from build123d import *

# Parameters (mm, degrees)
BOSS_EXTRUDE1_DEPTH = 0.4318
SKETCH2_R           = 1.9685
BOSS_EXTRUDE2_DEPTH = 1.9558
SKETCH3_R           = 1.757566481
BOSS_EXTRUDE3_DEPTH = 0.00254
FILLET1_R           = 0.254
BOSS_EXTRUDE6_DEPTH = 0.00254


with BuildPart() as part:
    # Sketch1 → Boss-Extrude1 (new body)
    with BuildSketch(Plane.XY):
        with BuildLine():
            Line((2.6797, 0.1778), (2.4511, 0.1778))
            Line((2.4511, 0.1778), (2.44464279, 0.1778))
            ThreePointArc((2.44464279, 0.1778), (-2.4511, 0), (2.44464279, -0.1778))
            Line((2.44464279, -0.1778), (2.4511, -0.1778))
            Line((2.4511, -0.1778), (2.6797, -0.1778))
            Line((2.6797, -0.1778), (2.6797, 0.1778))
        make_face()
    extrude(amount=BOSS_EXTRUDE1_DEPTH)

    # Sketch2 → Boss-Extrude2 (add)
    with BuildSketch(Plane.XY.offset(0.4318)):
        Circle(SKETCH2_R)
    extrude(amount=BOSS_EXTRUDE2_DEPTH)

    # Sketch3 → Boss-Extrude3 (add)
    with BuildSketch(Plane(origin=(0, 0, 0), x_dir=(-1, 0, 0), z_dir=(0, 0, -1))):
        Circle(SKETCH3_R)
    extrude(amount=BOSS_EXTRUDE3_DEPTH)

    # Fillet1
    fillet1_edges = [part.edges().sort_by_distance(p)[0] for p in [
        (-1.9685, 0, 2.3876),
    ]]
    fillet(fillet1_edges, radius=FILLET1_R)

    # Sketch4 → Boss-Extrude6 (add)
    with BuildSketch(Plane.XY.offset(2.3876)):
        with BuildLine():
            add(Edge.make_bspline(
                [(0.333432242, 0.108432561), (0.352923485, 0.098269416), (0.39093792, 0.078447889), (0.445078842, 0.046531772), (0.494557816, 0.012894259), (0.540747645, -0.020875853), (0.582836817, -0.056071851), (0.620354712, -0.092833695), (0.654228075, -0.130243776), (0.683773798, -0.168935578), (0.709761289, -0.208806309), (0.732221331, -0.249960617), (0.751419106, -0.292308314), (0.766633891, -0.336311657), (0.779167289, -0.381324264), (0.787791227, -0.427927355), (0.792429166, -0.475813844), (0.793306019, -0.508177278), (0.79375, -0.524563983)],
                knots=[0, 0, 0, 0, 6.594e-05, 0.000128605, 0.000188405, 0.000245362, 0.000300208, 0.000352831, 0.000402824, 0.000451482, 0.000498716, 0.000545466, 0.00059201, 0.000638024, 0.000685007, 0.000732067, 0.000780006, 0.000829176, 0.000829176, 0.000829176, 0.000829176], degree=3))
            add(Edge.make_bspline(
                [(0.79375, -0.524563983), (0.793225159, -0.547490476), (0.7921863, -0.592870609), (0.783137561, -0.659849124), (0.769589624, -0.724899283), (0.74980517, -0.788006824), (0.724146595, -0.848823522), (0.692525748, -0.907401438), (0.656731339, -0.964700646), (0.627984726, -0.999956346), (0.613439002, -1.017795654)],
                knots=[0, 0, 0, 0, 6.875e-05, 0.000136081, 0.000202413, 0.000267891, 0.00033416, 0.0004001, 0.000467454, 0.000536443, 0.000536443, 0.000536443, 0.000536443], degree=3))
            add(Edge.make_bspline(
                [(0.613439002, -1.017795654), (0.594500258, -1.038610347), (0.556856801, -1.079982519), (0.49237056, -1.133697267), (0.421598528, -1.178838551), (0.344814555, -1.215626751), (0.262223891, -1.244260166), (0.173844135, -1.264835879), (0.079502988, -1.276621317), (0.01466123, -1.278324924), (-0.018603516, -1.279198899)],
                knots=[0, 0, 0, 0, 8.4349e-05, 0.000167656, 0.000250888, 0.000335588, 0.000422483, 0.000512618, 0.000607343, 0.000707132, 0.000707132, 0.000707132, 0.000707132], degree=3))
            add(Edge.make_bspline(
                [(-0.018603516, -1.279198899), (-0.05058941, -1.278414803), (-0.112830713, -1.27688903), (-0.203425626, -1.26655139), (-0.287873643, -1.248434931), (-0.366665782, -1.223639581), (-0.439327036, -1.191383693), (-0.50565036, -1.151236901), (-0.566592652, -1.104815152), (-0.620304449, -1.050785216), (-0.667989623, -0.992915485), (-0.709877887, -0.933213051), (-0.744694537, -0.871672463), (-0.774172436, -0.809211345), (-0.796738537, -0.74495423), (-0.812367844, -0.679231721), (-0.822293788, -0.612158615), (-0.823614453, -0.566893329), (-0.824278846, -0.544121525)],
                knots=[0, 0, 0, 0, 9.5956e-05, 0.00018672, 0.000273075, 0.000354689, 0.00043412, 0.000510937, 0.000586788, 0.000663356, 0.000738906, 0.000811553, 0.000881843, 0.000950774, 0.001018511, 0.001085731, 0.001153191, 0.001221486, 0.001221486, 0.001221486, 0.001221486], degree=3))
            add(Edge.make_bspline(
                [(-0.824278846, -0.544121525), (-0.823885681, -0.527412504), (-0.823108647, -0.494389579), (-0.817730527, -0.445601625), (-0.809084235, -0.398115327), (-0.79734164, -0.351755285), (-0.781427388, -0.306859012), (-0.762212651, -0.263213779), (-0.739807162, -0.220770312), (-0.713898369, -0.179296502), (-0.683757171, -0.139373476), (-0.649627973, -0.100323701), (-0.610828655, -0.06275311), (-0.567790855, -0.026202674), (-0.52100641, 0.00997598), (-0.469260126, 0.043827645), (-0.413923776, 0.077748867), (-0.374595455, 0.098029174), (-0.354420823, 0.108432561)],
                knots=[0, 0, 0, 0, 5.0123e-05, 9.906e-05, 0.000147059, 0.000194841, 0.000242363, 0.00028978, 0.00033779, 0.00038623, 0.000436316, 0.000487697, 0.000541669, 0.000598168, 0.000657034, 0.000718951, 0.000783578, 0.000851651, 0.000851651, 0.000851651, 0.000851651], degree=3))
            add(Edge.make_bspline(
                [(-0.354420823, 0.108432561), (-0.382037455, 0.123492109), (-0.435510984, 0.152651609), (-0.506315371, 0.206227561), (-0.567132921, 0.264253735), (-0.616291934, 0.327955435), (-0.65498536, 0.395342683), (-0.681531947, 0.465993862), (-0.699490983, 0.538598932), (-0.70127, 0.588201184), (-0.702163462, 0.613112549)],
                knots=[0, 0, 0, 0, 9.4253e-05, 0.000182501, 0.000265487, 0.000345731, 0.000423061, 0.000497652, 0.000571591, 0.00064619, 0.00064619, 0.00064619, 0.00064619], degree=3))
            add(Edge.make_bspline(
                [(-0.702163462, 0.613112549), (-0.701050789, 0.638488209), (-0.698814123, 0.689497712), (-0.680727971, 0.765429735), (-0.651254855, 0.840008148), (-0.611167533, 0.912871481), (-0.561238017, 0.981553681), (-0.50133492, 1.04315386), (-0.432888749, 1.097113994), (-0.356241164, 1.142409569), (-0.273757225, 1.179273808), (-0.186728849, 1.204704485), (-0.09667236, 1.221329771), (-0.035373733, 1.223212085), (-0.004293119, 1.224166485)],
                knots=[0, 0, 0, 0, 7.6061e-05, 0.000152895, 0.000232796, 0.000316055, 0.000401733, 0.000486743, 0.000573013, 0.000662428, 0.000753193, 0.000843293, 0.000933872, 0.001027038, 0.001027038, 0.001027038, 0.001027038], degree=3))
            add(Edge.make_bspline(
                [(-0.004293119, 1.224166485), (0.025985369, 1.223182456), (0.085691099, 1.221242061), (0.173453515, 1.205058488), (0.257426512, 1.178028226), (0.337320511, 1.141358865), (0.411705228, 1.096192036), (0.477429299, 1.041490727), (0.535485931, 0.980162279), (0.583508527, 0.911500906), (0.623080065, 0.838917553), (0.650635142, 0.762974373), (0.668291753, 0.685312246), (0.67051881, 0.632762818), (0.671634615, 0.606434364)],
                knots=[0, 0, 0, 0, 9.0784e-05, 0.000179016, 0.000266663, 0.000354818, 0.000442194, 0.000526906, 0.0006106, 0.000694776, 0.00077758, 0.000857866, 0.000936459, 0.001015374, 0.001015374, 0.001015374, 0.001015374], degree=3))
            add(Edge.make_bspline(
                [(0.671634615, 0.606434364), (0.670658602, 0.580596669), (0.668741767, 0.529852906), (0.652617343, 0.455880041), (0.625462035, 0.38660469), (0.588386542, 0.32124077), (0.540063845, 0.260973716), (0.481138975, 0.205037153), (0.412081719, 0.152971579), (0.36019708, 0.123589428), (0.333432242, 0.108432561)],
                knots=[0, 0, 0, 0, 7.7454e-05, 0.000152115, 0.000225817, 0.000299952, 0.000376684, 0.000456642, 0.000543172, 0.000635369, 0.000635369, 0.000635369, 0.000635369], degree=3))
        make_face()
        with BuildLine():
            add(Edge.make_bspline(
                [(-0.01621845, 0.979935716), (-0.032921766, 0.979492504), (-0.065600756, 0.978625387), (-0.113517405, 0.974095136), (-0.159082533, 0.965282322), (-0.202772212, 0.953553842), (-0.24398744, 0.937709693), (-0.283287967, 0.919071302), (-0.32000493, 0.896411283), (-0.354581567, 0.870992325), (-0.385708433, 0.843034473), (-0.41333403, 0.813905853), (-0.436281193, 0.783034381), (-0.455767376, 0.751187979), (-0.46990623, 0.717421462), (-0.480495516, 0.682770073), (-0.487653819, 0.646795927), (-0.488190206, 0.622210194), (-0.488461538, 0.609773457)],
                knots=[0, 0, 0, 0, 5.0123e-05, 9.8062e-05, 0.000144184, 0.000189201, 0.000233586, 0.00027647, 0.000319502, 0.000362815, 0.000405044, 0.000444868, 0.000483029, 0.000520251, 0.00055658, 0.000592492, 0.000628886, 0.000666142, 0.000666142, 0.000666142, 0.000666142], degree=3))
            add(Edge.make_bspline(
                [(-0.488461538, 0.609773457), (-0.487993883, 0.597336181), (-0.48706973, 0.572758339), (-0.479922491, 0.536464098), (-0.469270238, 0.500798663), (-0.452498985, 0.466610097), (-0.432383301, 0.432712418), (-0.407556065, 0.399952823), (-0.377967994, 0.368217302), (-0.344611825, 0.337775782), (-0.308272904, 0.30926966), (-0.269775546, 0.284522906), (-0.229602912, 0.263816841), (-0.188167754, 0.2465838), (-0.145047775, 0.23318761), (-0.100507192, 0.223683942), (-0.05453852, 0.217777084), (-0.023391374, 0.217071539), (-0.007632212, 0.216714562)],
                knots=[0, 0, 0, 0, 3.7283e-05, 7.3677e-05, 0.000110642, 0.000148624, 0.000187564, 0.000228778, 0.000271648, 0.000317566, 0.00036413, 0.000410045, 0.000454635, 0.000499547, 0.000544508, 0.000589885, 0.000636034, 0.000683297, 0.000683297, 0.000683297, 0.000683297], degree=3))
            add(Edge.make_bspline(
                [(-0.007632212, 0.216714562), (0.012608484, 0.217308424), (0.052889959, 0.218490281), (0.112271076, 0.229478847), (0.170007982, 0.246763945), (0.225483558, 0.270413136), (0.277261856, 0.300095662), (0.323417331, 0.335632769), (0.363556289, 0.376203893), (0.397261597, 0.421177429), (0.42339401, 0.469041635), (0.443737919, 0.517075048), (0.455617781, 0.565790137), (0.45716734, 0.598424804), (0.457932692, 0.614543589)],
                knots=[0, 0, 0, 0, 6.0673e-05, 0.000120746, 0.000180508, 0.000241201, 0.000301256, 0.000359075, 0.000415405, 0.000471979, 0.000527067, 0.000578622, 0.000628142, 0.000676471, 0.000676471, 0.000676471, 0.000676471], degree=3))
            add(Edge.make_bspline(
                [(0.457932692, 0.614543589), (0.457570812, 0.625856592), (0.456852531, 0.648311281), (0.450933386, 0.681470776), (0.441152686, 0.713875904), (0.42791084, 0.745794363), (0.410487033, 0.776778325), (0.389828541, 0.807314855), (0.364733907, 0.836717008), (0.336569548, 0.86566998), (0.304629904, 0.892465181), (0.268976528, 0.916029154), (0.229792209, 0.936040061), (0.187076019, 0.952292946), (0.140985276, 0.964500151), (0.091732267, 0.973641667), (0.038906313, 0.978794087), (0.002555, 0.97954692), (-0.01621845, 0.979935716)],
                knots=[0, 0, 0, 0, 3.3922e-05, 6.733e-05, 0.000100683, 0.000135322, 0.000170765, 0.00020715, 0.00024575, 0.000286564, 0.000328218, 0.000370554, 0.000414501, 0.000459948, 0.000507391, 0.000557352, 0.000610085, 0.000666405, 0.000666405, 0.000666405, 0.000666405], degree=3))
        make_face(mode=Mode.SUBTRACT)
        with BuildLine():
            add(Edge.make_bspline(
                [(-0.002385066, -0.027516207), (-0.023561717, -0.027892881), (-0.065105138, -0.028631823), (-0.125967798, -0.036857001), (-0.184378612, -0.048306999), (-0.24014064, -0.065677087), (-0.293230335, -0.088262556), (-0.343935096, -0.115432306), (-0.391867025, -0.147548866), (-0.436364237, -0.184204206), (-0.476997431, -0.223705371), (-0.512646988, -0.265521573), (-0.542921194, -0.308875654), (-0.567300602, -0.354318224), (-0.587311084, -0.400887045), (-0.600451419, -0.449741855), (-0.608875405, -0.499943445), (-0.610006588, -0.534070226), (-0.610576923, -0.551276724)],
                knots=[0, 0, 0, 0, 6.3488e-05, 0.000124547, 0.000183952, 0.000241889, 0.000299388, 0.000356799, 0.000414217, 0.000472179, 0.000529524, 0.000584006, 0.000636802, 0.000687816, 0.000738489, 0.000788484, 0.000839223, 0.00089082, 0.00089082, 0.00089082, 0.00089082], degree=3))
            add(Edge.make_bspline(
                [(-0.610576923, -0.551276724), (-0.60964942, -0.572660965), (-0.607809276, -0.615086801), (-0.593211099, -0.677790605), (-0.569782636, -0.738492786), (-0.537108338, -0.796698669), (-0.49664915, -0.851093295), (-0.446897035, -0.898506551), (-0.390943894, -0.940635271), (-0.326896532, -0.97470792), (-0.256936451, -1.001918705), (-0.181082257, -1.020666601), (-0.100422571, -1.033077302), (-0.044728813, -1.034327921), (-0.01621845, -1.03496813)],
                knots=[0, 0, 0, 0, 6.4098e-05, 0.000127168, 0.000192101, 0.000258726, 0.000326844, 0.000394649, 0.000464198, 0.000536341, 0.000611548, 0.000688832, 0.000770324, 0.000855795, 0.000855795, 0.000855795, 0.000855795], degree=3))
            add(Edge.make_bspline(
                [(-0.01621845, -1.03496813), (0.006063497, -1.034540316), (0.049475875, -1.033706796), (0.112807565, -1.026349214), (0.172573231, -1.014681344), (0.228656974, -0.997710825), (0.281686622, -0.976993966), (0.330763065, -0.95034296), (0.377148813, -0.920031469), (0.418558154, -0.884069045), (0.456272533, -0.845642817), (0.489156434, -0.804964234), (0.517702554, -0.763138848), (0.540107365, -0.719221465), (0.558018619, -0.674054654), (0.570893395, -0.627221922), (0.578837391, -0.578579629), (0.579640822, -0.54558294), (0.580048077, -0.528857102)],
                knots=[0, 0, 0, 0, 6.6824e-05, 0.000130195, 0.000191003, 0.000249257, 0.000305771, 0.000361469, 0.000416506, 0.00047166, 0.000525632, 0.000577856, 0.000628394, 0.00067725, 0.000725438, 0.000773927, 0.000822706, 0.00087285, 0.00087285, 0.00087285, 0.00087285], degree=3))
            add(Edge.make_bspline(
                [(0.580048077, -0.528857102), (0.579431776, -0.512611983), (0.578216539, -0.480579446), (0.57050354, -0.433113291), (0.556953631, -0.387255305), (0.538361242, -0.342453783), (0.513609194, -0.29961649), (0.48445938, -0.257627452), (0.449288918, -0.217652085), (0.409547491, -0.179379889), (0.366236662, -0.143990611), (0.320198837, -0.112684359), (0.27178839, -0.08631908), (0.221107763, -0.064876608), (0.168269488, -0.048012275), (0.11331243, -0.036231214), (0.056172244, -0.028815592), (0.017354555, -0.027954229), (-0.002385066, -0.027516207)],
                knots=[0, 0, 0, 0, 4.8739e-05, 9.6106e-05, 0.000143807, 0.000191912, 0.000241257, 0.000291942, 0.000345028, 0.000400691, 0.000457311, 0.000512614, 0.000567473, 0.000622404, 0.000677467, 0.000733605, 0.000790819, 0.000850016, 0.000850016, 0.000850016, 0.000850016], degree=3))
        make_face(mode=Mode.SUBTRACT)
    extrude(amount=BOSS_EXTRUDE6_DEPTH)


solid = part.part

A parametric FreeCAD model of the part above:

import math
import FreeCAD as App
import Part
import Sketcher
from FreeCAD import Vector
Q = App.Units.Quantity


def edges_at(feature, points):
    """Names of the edges that pass closest to the given points."""
    edges = feature.Shape.Edges
    near = lambda p: min(range(len(edges)), key=lambda i: edges[i].distToShape(Part.Vertex(*p))[0])
    return sorted({f"Edge{near(p) + 1}" for p in points})

doc = App.newDocument("Part")
body = doc.addObject("PartDesign::Body", "Body")

sketch1 = body.newObject("Sketcher::SketchObject", "Sketch")
sketch1.AttachmentSupport = (doc.getObject("XY_Plane"), [""])
sketch1.MapMode = "FlatFace"
sketch1.addGeometry(Part.LineSegment(Vector(2.6797, 0.1778, 0), Vector(2.444643, 0.1778, 0)), False)
sketch1.addGeometry(Part.ArcOfCircle(Part.Circle(Vector(0, 0, 0), Vector(0, 0, 1), 2.4511), math.radians(4.159824), math.radians(355.840176)), False)
sketch1.addGeometry(Part.LineSegment(Vector(2.444643, -0.1778, 0), Vector(2.6797, -0.1778, 0)), False)
sketch1.addGeometry(Part.LineSegment(Vector(2.6797, -0.1778, 0), Vector(2.6797, 0.1778, 0)), False)
sketch1.addConstraint(Sketcher.Constraint("Coincident", 0, 2, 1, 1))
sketch1.addConstraint(Sketcher.Constraint("Coincident", 1, 2, 2, 1))
sketch1.addConstraint(Sketcher.Constraint("Coincident", 2, 2, 3, 1))
sketch1.addConstraint(Sketcher.Constraint("Coincident", 3, 2, 0, 1))
sketch1.addConstraint(Sketcher.Constraint("Horizontal", 0))
sketch1.addConstraint(Sketcher.Constraint("Horizontal", 2))
sketch1.addConstraint(Sketcher.Constraint("Vertical", 3))
sketch1.addConstraint(Sketcher.Constraint("Coincident", 1, 3, -1, 1))
sketch1.addConstraint(Sketcher.Constraint("Vertical", 0, 2, 1, 2))
sketch1.addConstraint(Sketcher.Constraint("Radius", 1, Q("0.0965 in")))
sketch1.addConstraint(Sketcher.Constraint("DistanceY", 3, 1, 3, 2, Q("0.014 in")))
sketch1.addConstraint(Sketcher.Constraint("DistanceX", -1, 1, 2, 2, Q("0.1055 in")))
pad1 = body.newObject("PartDesign::Pad", "Pad")
pad1.Profile = sketch1
pad1.Length = Q("0.017 in")

sketch2 = body.newObject("Sketcher::SketchObject", "Sketch001")
sketch2.AttachmentSupport = (doc.getObject("XY_Plane"), [""])
sketch2.MapMode = "FlatFace"
sketch2.AttachmentOffset = App.Placement(Vector(0, 0, 0.017 * 25.4), App.Rotation())
sketch2.addGeometry(Part.Circle(Vector(0, 0, 0), Vector(0, 0, 1), 1.9685), False)
sketch2.addConstraint(Sketcher.Constraint("Coincident", 0, 3, -1, 1))
sketch2.addConstraint(Sketcher.Constraint("Diameter", 0, Q("0.155 in")))
pad2 = body.newObject("PartDesign::Pad", "Pad001")
pad2.Profile = sketch2
pad2.Length = Q("0.077 in")

sketch3 = body.newObject("Sketcher::SketchObject", "Sketch002")
sketch3.AttachmentSupport = (doc.getObject("XY_Plane"), [""])
sketch3.MapMode = "FlatFace"
sketch3.addGeometry(Part.Circle(Vector(0, 0, 0), Vector(0, 0, 1), 1.757566), False)
sketch3.addConstraint(Sketcher.Constraint("Coincident", 0, 3, -1, 1))
sketch3.addConstraint(Sketcher.Constraint("Diameter", 0, 3.515133))
pad3 = body.newObject("PartDesign::Pad", "Pad002")
pad3.Profile = sketch3
pad3.Length = Q("0.0001 in")
pad3.Reversed = True
doc.recompute()

fillet = body.newObject("PartDesign::Fillet", "Fillet")
fillet.Base = (pad3, edges_at(pad3, [(-1.968, 0, 2.388)]))
fillet.Radius = Q("0.01 in")

sketch4 = body.newObject("Sketcher::SketchObject", "Sketch003")
sketch4.AttachmentSupport = (doc.getObject("XY_Plane"), [""])
sketch4.MapMode = "FlatFace"
sketch4.AttachmentOffset = App.Placement(Vector(0, 0, 0.094 * 25.4), App.Rotation())
sketch4.addGeometry(Part.BSplineCurve([Vector(0.333432, 0.108433, 0), Vector(0.352923, 0.098269, 0), Vector(0.390938, 0.078448, 0), Vector(0.445079, 0.046532, 0), Vector(0.494558, 0.012894, 0), Vector(0.540748, -0.020876, 0), Vector(0.582837, -0.056072, 0), Vector(0.620355, -0.092834, 0), Vector(0.654228, -0.130244, 0), Vector(0.683774, -0.168936, 0), Vector(0.709761, -0.208806, 0), Vector(0.732221, -0.249961, 0), Vector(0.751419, -0.292308, 0), Vector(0.766634, -0.336312, 0), Vector(0.779167, -0.381324, 0), Vector(0.787791, -0.427927, 0), Vector(0.792429, -0.475814, 0), Vector(0.793306, -0.508177, 0), Vector(0.79375, -0.524564, 0)], [4, 1, 1, 1, 1, 1, 1, 1, 1, 1, 1, 1, 1, 1, 1, 1, 4], [0, 0.00006594, 0.000128605, 0.000188405, 0.000245362, 0.000300208, 0.000352831, 0.000402824, 0.000451482, 0.000498716, 0.000545466, 0.00059201, 0.000638024, 0.000685007, 0.000732067, 0.000780006, 0.000829176], False, 3, [1, 1, 1, 1, 1, 1, 1, 1, 1, 1, 1, 1, 1, 1, 1, 1, 1, 1, 1], False), False)
sketch4.addGeometry(Part.BSplineCurve([Vector(0.671635, 0.606434, 0), Vector(0.670659, 0.580597, 0), Vector(0.668742, 0.529853, 0), Vector(0.652617, 0.45588, 0), Vector(0.625462, 0.386605, 0), Vector(0.588387, 0.321241, 0), Vector(0.540064, 0.260974, 0), Vector(0.481139, 0.205037, 0), Vector(0.412082, 0.152972, 0), Vector(0.360197, 0.123589, 0), Vector(0.333432, 0.108433, 0)], [4, 1, 1, 1, 1, 1, 1, 1, 4], [0, 0.000077454, 0.000152115, 0.000225817, 0.000299952, 0.000376684, 0.000456642, 0.000543172, 0.000635369], False, 3, [1, 1, 1, 1, 1, 1, 1, 1, 1, 1, 1], False), False)
sketch4.addGeometry(Part.BSplineCurve([Vector(-0.004293, 1.224166, 0), Vector(0.025985, 1.223182, 0), Vector(0.085691, 1.221242, 0), Vector(0.173454, 1.205058, 0), Vector(0.257427, 1.178028, 0), Vector(0.337321, 1.141359, 0), Vector(0.411705, 1.096192, 0), Vector(0.477429, 1.041491, 0), Vector(0.535486, 0.980162, 0), Vector(0.583509, 0.911501, 0), Vector(0.62308, 0.838918, 0), Vector(0.650635, 0.762974, 0), Vector(0.668292, 0.685312, 0), Vector(0.670519, 0.632763, 0), Vector(0.671635, 0.606434, 0)], [4, 1, 1, 1, 1, 1, 1, 1, 1, 1, 1, 1, 4], [0, 0.000090784, 0.000179016, 0.000266663, 0.000354818, 0.000442194, 0.000526906, 0.0006106, 0.000694776, 0.00077758, 0.000857866, 0.000936459, 0.001015374], False, 3, [1, 1, 1, 1, 1, 1, 1, 1, 1, 1, 1, 1, 1, 1, 1], False), False)
sketch4.addGeometry(Part.BSplineCurve([Vector(-0.702163, 0.613113, 0), Vector(-0.701051, 0.638488, 0), Vector(-0.698814, 0.689498, 0), Vector(-0.680728, 0.76543, 0), Vector(-0.651255, 0.840008, 0), Vector(-0.611168, 0.912871, 0), Vector(-0.561238, 0.981554, 0), Vector(-0.501335, 1.043154, 0), Vector(-0.432889, 1.097114, 0), Vector(-0.356241, 1.14241, 0), Vector(-0.273757, 1.179274, 0), Vector(-0.186729, 1.204704, 0), Vector(-0.096672, 1.22133, 0), Vector(-0.035374, 1.223212, 0), Vector(-0.004293, 1.224166, 0)], [4, 1, 1, 1, 1, 1, 1, 1, 1, 1, 1, 1, 4], [0, 0.000076061, 0.000152895, 0.000232796, 0.000316055, 0.000401733, 0.000486743, 0.000573013, 0.000662428, 0.000753193, 0.000843293, 0.000933872, 0.001027038], False, 3, [1, 1, 1, 1, 1, 1, 1, 1, 1, 1, 1, 1, 1, 1, 1], False), False)
sketch4.addGeometry(Part.BSplineCurve([Vector(-0.354421, 0.108433, 0), Vector(-0.382037, 0.123492, 0), Vector(-0.435511, 0.152652, 0), Vector(-0.506315, 0.206228, 0), Vector(-0.567133, 0.264254, 0), Vector(-0.616292, 0.327955, 0), Vector(-0.654985, 0.395343, 0), Vector(-0.681532, 0.465994, 0), Vector(-0.699491, 0.538599, 0), Vector(-0.70127, 0.588201, 0), Vector(-0.702163, 0.613113, 0)], [4, 1, 1, 1, 1, 1, 1, 1, 4], [0, 0.000094253, 0.000182501, 0.000265487, 0.000345731, 0.000423061, 0.000497652, 0.000571591, 0.00064619], False, 3, [1, 1, 1, 1, 1, 1, 1, 1, 1, 1, 1], False), False)
sketch4.addGeometry(Part.BSplineCurve([Vector(-0.824279, -0.544122, 0), Vector(-0.823886, -0.527413, 0), Vector(-0.823109, -0.49439, 0), Vector(-0.817731, -0.445602, 0), Vector(-0.809084, -0.398115, 0), Vector(-0.797342, -0.351755, 0), Vector(-0.781427, -0.306859, 0), Vector(-0.762213, -0.263214, 0), Vector(-0.739807, -0.22077, 0), Vector(-0.713898, -0.179297, 0), Vector(-0.683757, -0.139373, 0), Vector(-0.649628, -0.100324, 0), Vector(-0.610829, -0.062753, 0), Vector(-0.567791, -0.026203, 0), Vector(-0.521006, 0.009976, 0), Vector(-0.46926, 0.043828, 0), Vector(-0.413924, 0.077749, 0), Vector(-0.374595, 0.098029, 0), Vector(-0.354421, 0.108433, 0)], [4, 1, 1, 1, 1, 1, 1, 1, 1, 1, 1, 1, 1, 1, 1, 1, 4], [0, 0.000050123, 0.00009906, 0.000147059, 0.000194841, 0.000242363, 0.00028978, 0.00033779, 0.00038623, 0.000436316, 0.000487697, 0.000541669, 0.000598168, 0.000657034, 0.000718951, 0.000783578, 0.000851651], False, 3, [1, 1, 1, 1, 1, 1, 1, 1, 1, 1, 1, 1, 1, 1, 1, 1, 1, 1, 1], False), False)
sketch4.addGeometry(Part.BSplineCurve([Vector(-0.018604, -1.279199, 0), Vector(-0.050589, -1.278415, 0), Vector(-0.112831, -1.276889, 0), Vector(-0.203426, -1.266551, 0), Vector(-0.287874, -1.248435, 0), Vector(-0.366666, -1.22364, 0), Vector(-0.439327, -1.191384, 0), Vector(-0.50565, -1.151237, 0), Vector(-0.566593, -1.104815, 0), Vector(-0.620304, -1.050785, 0), Vector(-0.66799, -0.992915, 0), Vector(-0.709878, -0.933213, 0), Vector(-0.744695, -0.871672, 0), Vector(-0.774172, -0.809211, 0), Vector(-0.796739, -0.744954, 0), Vector(-0.812368, -0.679232, 0), Vector(-0.822294, -0.612159, 0), Vector(-0.823614, -0.566893, 0), Vector(-0.824279, -0.544122, 0)], [4, 1, 1, 1, 1, 1, 1, 1, 1, 1, 1, 1, 1, 1, 1, 1, 4], [0, 0.000095956, 0.00018672, 0.000273075, 0.000354689, 0.00043412, 0.000510937, 0.000586788, 0.000663356, 0.000738906, 0.000811553, 0.000881843, 0.000950774, 0.001018511, 0.001085731, 0.001153191, 0.001221486], False, 3, [1, 1, 1, 1, 1, 1, 1, 1, 1, 1, 1, 1, 1, 1, 1, 1, 1, 1, 1], False), False)
sketch4.addGeometry(Part.BSplineCurve([Vector(0.613439, -1.017796, 0), Vector(0.5945, -1.03861, 0), Vector(0.556857, -1.079983, 0), Vector(0.492371, -1.133697, 0), Vector(0.421599, -1.178839, 0), Vector(0.344815, -1.215627, 0), Vector(0.262224, -1.24426, 0), Vector(0.173844, -1.264836, 0), Vector(0.079503, -1.276621, 0), Vector(0.014661, -1.278325, 0), Vector(-0.018604, -1.279199, 0)], [4, 1, 1, 1, 1, 1, 1, 1, 4], [0, 0.000084349, 0.000167656, 0.000250888, 0.000335588, 0.000422483, 0.000512618, 0.000607343, 0.000707132], False, 3, [1, 1, 1, 1, 1, 1, 1, 1, 1, 1, 1], False), False)
sketch4.addGeometry(Part.BSplineCurve([Vector(0.79375, -0.524564, 0), Vector(0.793225, -0.54749, 0), Vector(0.792186, -0.592871, 0), Vector(0.783138, -0.659849, 0), Vector(0.76959, -0.724899, 0), Vector(0.749805, -0.788007, 0), Vector(0.724147, -0.848824, 0), Vector(0.692526, -0.907401, 0), Vector(0.656731, -0.964701, 0), Vector(0.627985, -0.999956, 0), Vector(0.613439, -1.017796, 0)], [4, 1, 1, 1, 1, 1, 1, 1, 4], [0, 0.00006875, 0.000136081, 0.000202413, 0.000267891, 0.00033416, 0.0004001, 0.000467454, 0.000536443], False, 3, [1, 1, 1, 1, 1, 1, 1, 1, 1, 1, 1], False), False)
sketch4.addGeometry(Part.BSplineCurve([Vector(0.580048, -0.528857, 0), Vector(0.579432, -0.512612, 0), Vector(0.578217, -0.480579, 0), Vector(0.570504, -0.433113, 0), Vector(0.556954, -0.387255, 0), Vector(0.538361, -0.342454, 0), Vector(0.513609, -0.299616, 0), Vector(0.484459, -0.257627, 0), Vector(0.449289, -0.217652, 0), Vector(0.409547, -0.17938, 0), Vector(0.366237, -0.143991, 0), Vector(0.320199, -0.112684, 0), Vector(0.271788, -0.086319, 0), Vector(0.221108, -0.064877, 0), Vector(0.168269, -0.048012, 0), Vector(0.113312, -0.036231, 0), Vector(0.056172, -0.028816, 0), Vector(0.017355, -0.027954, 0), Vector(-0.002385, -0.027516, 0)], [4, 1, 1, 1, 1, 1, 1, 1, 1, 1, 1, 1, 1, 1, 1, 1, 4], [0, 0.000048739, 0.000096106, 0.000143807, 0.000191912, 0.000241257, 0.000291942, 0.000345028, 0.000400691, 0.000457311, 0.000512614, 0.000567473, 0.000622404, 0.000677467, 0.000733605, 0.000790819, 0.000850016], False, 3, [1, 1, 1, 1, 1, 1, 1, 1, 1, 1, 1, 1, 1, 1, 1, 1, 1, 1, 1], False), False)
sketch4.addGeometry(Part.BSplineCurve([Vector(-0.016218, -1.034968, 0), Vector(0.006063, -1.03454, 0), Vector(0.049476, -1.033707, 0), Vector(0.112808, -1.026349, 0), Vector(0.172573, -1.014681, 0), Vector(0.228657, -0.997711, 0), Vector(0.281687, -0.976994, 0), Vector(0.330763, -0.950343, 0), Vector(0.377149, -0.920031, 0), Vector(0.418558, -0.884069, 0), Vector(0.456273, -0.845643, 0), Vector(0.489156, -0.804964, 0), Vector(0.517703, -0.763139, 0), Vector(0.540107, -0.719221, 0), Vector(0.558019, -0.674055, 0), Vector(0.570893, -0.627222, 0), Vector(0.578837, -0.57858, 0), Vector(0.579641, -0.545583, 0), Vector(0.580048, -0.528857, 0)], [4, 1, 1, 1, 1, 1, 1, 1, 1, 1, 1, 1, 1, 1, 1, 1, 4], [0, 0.000066824, 0.000130195, 0.000191003, 0.000249257, 0.000305771, 0.000361469, 0.000416506, 0.00047166, 0.000525632, 0.000577856, 0.000628394, 0.00067725, 0.000725438, 0.000773927, 0.000822706, 0.00087285], False, 3, [1, 1, 1, 1, 1, 1, 1, 1, 1, 1, 1, 1, 1, 1, 1, 1, 1, 1, 1], False), False)
sketch4.addGeometry(Part.BSplineCurve([Vector(-0.610577, -0.551277, 0), Vector(-0.609649, -0.572661, 0), Vector(-0.607809, -0.615087, 0), Vector(-0.593211, -0.677791, 0), Vector(-0.569783, -0.738493, 0), Vector(-0.537108, -0.796699, 0), Vector(-0.496649, -0.851093, 0), Vector(-0.446897, -0.898507, 0), Vector(-0.390944, -0.940635, 0), Vector(-0.326897, -0.974708, 0), Vector(-0.256936, -1.001919, 0), Vector(-0.181082, -1.020667, 0), Vector(-0.100423, -1.033077, 0), Vector(-0.044729, -1.034328, 0), Vector(-0.016218, -1.034968, 0)], [4, 1, 1, 1, 1, 1, 1, 1, 1, 1, 1, 1, 4], [0, 0.000064098, 0.000127168, 0.000192101, 0.000258726, 0.000326844, 0.000394649, 0.000464198, 0.000536341, 0.000611548, 0.000688832, 0.000770324, 0.000855795], False, 3, [1, 1, 1, 1, 1, 1, 1, 1, 1, 1, 1, 1, 1, 1, 1], False), False)
sketch4.addGeometry(Part.BSplineCurve([Vector(-0.002385, -0.027516, 0), Vector(-0.023562, -0.027893, 0), Vector(-0.065105, -0.028632, 0), Vector(-0.125968, -0.036857, 0), Vector(-0.184379, -0.048307, 0), Vector(-0.240141, -0.065677, 0), Vector(-0.29323, -0.088263, 0), Vector(-0.343935, -0.115432, 0), Vector(-0.391867, -0.147549, 0), Vector(-0.436364, -0.184204, 0), Vector(-0.476997, -0.223705, 0), Vector(-0.512647, -0.265522, 0), Vector(-0.542921, -0.308876, 0), Vector(-0.567301, -0.354318, 0), Vector(-0.587311, -0.400887, 0), Vector(-0.600451, -0.449742, 0), Vector(-0.608875, -0.499943, 0), Vector(-0.610007, -0.53407, 0), Vector(-0.610577, -0.551277, 0)], [4, 1, 1, 1, 1, 1, 1, 1, 1, 1, 1, 1, 1, 1, 1, 1, 4], [0, 0.000063488, 0.000124547, 0.000183952, 0.000241889, 0.000299388, 0.000356799, 0.000414217, 0.000472179, 0.000529524, 0.000584006, 0.000636802, 0.000687816, 0.000738489, 0.000788484, 0.000839223, 0.00089082], False, 3, [1, 1, 1, 1, 1, 1, 1, 1, 1, 1, 1, 1, 1, 1, 1, 1, 1, 1, 1], False), False)
sketch4.addGeometry(Part.BSplineCurve([Vector(0.457933, 0.614544, 0), Vector(0.457571, 0.625857, 0), Vector(0.456853, 0.648311, 0), Vector(0.450933, 0.681471, 0), Vector(0.441153, 0.713876, 0), Vector(0.427911, 0.745794, 0), Vector(0.410487, 0.776778, 0), Vector(0.389829, 0.807315, 0), Vector(0.364734, 0.836717, 0), Vector(0.33657, 0.86567, 0), Vector(0.30463, 0.892465, 0), Vector(0.268977, 0.916029, 0), Vector(0.229792, 0.93604, 0), Vector(0.187076, 0.952293, 0), Vector(0.140985, 0.9645, 0), Vector(0.091732, 0.973642, 0), Vector(0.038906, 0.978794, 0), Vector(0.002555, 0.979547, 0), Vector(-0.016218, 0.979936, 0)], [4, 1, 1, 1, 1, 1, 1, 1, 1, 1, 1, 1, 1, 1, 1, 1, 4], [0, 0.000033922, 0.00006733, 0.000100683, 0.000135322, 0.000170765, 0.00020715, 0.00024575, 0.000286564, 0.000328218, 0.000370554, 0.000414501, 0.000459948, 0.000507391, 0.000557352, 0.000610085, 0.000666405], False, 3, [1, 1, 1, 1, 1, 1, 1, 1, 1, 1, 1, 1, 1, 1, 1, 1, 1, 1, 1], False), False)
sketch4.addGeometry(Part.BSplineCurve([Vector(-0.007632, 0.216715, 0), Vector(0.012608, 0.217308, 0), Vector(0.05289, 0.21849, 0), Vector(0.112271, 0.229479, 0), Vector(0.170008, 0.246764, 0), Vector(0.225484, 0.270413, 0), Vector(0.277262, 0.300096, 0), Vector(0.323417, 0.335633, 0), Vector(0.363556, 0.376204, 0), Vector(0.397262, 0.421177, 0), Vector(0.423394, 0.469042, 0), Vector(0.443738, 0.517075, 0), Vector(0.455618, 0.56579, 0), Vector(0.457167, 0.598425, 0), Vector(0.457933, 0.614544, 0)], [4, 1, 1, 1, 1, 1, 1, 1, 1, 1, 1, 1, 4], [0, 0.000060673, 0.000120746, 0.000180508, 0.000241201, 0.000301256, 0.000359075, 0.000415405, 0.000471979, 0.000527067, 0.000578622, 0.000628142, 0.000676471], False, 3, [1, 1, 1, 1, 1, 1, 1, 1, 1, 1, 1, 1, 1, 1, 1], False), False)
sketch4.addGeometry(Part.BSplineCurve([Vector(-0.488462, 0.609773, 0), Vector(-0.487994, 0.597336, 0), Vector(-0.48707, 0.572758, 0), Vector(-0.479922, 0.536464, 0), Vector(-0.46927, 0.500799, 0), Vector(-0.452499, 0.46661, 0), Vector(-0.432383, 0.432712, 0), Vector(-0.407556, 0.399953, 0), Vector(-0.377968, 0.368217, 0), Vector(-0.344612, 0.337776, 0), Vector(-0.308273, 0.30927, 0), Vector(-0.269776, 0.284523, 0), Vector(-0.229603, 0.263817, 0), Vector(-0.188168, 0.246584, 0), Vector(-0.145048, 0.233188, 0), Vector(-0.100507, 0.223684, 0), Vector(-0.054539, 0.217777, 0), Vector(-0.023391, 0.217072, 0), Vector(-0.007632, 0.216715, 0)], [4, 1, 1, 1, 1, 1, 1, 1, 1, 1, 1, 1, 1, 1, 1, 1, 4], [0, 0.000037283, 0.000073677, 0.000110642, 0.000148624, 0.000187564, 0.000228778, 0.000271648, 0.000317566, 0.00036413, 0.000410045, 0.000454635, 0.000499547, 0.000544508, 0.000589885, 0.000636034, 0.000683297], False, 3, [1, 1, 1, 1, 1, 1, 1, 1, 1, 1, 1, 1, 1, 1, 1, 1, 1, 1, 1], False), False)
sketch4.addGeometry(Part.BSplineCurve([Vector(-0.016218, 0.979936, 0), Vector(-0.032922, 0.979493, 0), Vector(-0.065601, 0.978625, 0), Vector(-0.113517, 0.974095, 0), Vector(-0.159083, 0.965282, 0), Vector(-0.202772, 0.953554, 0), Vector(-0.243987, 0.93771, 0), Vector(-0.283288, 0.919071, 0), Vector(-0.320005, 0.896411, 0), Vector(-0.354582, 0.870992, 0), Vector(-0.385708, 0.843034, 0), Vector(-0.413334, 0.813906, 0), Vector(-0.436281, 0.783034, 0), Vector(-0.455767, 0.751188, 0), Vector(-0.469906, 0.717421, 0), Vector(-0.480496, 0.68277, 0), Vector(-0.487654, 0.646796, 0), Vector(-0.48819, 0.62221, 0), Vector(-0.488462, 0.609773, 0)], [4, 1, 1, 1, 1, 1, 1, 1, 1, 1, 1, 1, 1, 1, 1, 1, 4], [0, 0.000050123, 0.000098062, 0.000144184, 0.000189201, 0.000233586, 0.00027647, 0.000319502, 0.000362815, 0.000405044, 0.000444868, 0.000483029, 0.000520251, 0.00055658, 0.000592492, 0.000628886, 0.000666142], False, 3, [1, 1, 1, 1, 1, 1, 1, 1, 1, 1, 1, 1, 1, 1, 1, 1, 1, 1, 1], False), False)
sketch4.addConstraint(Sketcher.Constraint("Block", 0))
sketch4.addConstraint(Sketcher.Constraint("Block", 1))
sketch4.addConstraint(Sketcher.Constraint("Block", 2))
sketch4.addConstraint(Sketcher.Constraint("Block", 3))
sketch4.addConstraint(Sketcher.Constraint("Block", 4))
sketch4.addConstraint(Sketcher.Constraint("Block", 5))
sketch4.addConstraint(Sketcher.Constraint("Block", 6))
sketch4.addConstraint(Sketcher.Constraint("Block", 7))
sketch4.addConstraint(Sketcher.Constraint("Block", 8))
sketch4.addConstraint(Sketcher.Constraint("Block", 9))
sketch4.addConstraint(Sketcher.Constraint("Block", 10))
sketch4.addConstraint(Sketcher.Constraint("Block", 11))
sketch4.addConstraint(Sketcher.Constraint("Block", 12))
sketch4.addConstraint(Sketcher.Constraint("Block", 13))
sketch4.addConstraint(Sketcher.Constraint("Block", 14))
sketch4.addConstraint(Sketcher.Constraint("Block", 15))
sketch4.addConstraint(Sketcher.Constraint("Block", 16))
pad4 = body.newObject("PartDesign::Pad", "Pad003")
pad4.Profile = sketch4
pad4.Length = Q("0.0001 in")

doc.recompute()
